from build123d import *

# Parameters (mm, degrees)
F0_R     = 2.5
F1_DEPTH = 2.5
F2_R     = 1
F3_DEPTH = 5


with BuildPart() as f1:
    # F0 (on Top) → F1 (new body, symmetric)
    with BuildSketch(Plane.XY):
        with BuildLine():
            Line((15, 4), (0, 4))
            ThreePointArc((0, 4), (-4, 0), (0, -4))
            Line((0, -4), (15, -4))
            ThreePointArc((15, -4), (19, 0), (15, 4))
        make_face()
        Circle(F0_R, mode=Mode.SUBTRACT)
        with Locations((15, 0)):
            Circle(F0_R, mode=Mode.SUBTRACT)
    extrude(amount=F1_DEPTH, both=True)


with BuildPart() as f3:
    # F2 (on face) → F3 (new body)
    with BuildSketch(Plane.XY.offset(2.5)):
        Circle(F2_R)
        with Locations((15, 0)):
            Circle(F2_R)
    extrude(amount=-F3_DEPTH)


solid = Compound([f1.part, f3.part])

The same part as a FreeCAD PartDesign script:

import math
import FreeCAD as App
import Part
import Sketcher
Q = App.Units.Quantity

doc = App.newDocument("Part")
body = doc.addObject("PartDesign::Body", "Body")

sketch1 = body.newObject("Sketcher::SketchObject", "Sketch")
sketch1.AttachmentSupport = (doc.getObject("XY_Plane"), [""])
sketch1.MapMode = "FlatFace"
sketch1.addGeometry([
    Part.LineSegment(App.Vector(15, 4, 0), App.Vector(0, 4, 0)),
    Part.ArcOfCircle(Part.Circle(App.Vector(0, 0, 0), App.Vector(0, 0, 1), 4), math.radians(90), math.radians(270)),
    Part.LineSegment(App.Vector(0, -4, 0), App.Vector(15, -4, 0)),
    Part.ArcOfCircle(Part.Circle(App.Vector(15, 0, 0), App.Vector(0, 0, 1), 4), math.radians(-90), math.radians(90)),
    Part.Circle(App.Vector(0, 0, 0), App.Vector(0, 0, 1), 2.5),
    Part.Circle(App.Vector(15, 0, 0), App.Vector(0, 0, 1), 2.5),
], False)
sketch1.addConstraint([
    Sketcher.Constraint("Tangent", 0, 2, 1, 1),
    Sketcher.Constraint("Tangent", 1, 2, 2, 1),
    Sketcher.Constraint("Tangent", 2, 2, 3, 1),
    Sketcher.Constraint("Tangent", 3, 2, 0, 1),
    Sketcher.Constraint("Horizontal", 0),
    Sketcher.Constraint("Horizontal", 2),
    Sketcher.Constraint("Coincident", 1, 3, -1, 1),
    Sketcher.Constraint("Coincident", 4, 3, -1, 1),
    Sketcher.Constraint("Coincident", 5, 3, 3, 3),
    Sketcher.Constraint("Equal", 4, 5),
    Sketcher.Constraint("Diameter", 4, Q("5 mm")),
    Sketcher.Constraint("Radius", 1, Q("4 mm")),
    Sketcher.Constraint("DistanceX", 0, 2, 0, 1, Q("15 mm")),
])
pad1 = body.newObject("PartDesign::Pad", "Pad")
pad1.Profile = sketch1
pad1.Length = 5
pad1.Midplane = True
body2 = doc.addObject("PartDesign::Body", "Body001")
body2.AllowCompound = True

sketch2 = body2.newObject("Sketcher::SketchObject", "Sketch001")
sketch2.AttachmentSupport = (doc.getObject("XY_Plane001"), [""])
sketch2.MapMode = "FlatFace"
sketch2.AttachmentOffset = App.Placement(App.Vector(0, 0, 2.5), App.Rotation())
sketch2.addGeometry([
    Part.Circle(App.Vector(0, 0, 0), App.Vector(0, 0, 1), 1),
    Part.Circle(App.Vector(15, 0, 0), App.Vector(0, 0, 1), 1),
], False)
sketch2.addConstraint([
    Sketcher.Constraint("Coincident", 0, 3, -1, 1),
    Sketcher.Constraint("Equal", 0, 1),
    Sketcher.Constraint("PointOnObject", 1, 3, -1),
    Sketcher.Constraint("Diameter", 0, Q("2 mm")),
    Sketcher.Constraint("DistanceX", -1, 1, 1, 3, Q("15 mm")),
])
pad2 = body2.newObject("PartDesign::Pad", "Pad001")
pad2.Profile = sketch2
pad2.Length = 5
pad2.Reversed = True

doc.recompute()
